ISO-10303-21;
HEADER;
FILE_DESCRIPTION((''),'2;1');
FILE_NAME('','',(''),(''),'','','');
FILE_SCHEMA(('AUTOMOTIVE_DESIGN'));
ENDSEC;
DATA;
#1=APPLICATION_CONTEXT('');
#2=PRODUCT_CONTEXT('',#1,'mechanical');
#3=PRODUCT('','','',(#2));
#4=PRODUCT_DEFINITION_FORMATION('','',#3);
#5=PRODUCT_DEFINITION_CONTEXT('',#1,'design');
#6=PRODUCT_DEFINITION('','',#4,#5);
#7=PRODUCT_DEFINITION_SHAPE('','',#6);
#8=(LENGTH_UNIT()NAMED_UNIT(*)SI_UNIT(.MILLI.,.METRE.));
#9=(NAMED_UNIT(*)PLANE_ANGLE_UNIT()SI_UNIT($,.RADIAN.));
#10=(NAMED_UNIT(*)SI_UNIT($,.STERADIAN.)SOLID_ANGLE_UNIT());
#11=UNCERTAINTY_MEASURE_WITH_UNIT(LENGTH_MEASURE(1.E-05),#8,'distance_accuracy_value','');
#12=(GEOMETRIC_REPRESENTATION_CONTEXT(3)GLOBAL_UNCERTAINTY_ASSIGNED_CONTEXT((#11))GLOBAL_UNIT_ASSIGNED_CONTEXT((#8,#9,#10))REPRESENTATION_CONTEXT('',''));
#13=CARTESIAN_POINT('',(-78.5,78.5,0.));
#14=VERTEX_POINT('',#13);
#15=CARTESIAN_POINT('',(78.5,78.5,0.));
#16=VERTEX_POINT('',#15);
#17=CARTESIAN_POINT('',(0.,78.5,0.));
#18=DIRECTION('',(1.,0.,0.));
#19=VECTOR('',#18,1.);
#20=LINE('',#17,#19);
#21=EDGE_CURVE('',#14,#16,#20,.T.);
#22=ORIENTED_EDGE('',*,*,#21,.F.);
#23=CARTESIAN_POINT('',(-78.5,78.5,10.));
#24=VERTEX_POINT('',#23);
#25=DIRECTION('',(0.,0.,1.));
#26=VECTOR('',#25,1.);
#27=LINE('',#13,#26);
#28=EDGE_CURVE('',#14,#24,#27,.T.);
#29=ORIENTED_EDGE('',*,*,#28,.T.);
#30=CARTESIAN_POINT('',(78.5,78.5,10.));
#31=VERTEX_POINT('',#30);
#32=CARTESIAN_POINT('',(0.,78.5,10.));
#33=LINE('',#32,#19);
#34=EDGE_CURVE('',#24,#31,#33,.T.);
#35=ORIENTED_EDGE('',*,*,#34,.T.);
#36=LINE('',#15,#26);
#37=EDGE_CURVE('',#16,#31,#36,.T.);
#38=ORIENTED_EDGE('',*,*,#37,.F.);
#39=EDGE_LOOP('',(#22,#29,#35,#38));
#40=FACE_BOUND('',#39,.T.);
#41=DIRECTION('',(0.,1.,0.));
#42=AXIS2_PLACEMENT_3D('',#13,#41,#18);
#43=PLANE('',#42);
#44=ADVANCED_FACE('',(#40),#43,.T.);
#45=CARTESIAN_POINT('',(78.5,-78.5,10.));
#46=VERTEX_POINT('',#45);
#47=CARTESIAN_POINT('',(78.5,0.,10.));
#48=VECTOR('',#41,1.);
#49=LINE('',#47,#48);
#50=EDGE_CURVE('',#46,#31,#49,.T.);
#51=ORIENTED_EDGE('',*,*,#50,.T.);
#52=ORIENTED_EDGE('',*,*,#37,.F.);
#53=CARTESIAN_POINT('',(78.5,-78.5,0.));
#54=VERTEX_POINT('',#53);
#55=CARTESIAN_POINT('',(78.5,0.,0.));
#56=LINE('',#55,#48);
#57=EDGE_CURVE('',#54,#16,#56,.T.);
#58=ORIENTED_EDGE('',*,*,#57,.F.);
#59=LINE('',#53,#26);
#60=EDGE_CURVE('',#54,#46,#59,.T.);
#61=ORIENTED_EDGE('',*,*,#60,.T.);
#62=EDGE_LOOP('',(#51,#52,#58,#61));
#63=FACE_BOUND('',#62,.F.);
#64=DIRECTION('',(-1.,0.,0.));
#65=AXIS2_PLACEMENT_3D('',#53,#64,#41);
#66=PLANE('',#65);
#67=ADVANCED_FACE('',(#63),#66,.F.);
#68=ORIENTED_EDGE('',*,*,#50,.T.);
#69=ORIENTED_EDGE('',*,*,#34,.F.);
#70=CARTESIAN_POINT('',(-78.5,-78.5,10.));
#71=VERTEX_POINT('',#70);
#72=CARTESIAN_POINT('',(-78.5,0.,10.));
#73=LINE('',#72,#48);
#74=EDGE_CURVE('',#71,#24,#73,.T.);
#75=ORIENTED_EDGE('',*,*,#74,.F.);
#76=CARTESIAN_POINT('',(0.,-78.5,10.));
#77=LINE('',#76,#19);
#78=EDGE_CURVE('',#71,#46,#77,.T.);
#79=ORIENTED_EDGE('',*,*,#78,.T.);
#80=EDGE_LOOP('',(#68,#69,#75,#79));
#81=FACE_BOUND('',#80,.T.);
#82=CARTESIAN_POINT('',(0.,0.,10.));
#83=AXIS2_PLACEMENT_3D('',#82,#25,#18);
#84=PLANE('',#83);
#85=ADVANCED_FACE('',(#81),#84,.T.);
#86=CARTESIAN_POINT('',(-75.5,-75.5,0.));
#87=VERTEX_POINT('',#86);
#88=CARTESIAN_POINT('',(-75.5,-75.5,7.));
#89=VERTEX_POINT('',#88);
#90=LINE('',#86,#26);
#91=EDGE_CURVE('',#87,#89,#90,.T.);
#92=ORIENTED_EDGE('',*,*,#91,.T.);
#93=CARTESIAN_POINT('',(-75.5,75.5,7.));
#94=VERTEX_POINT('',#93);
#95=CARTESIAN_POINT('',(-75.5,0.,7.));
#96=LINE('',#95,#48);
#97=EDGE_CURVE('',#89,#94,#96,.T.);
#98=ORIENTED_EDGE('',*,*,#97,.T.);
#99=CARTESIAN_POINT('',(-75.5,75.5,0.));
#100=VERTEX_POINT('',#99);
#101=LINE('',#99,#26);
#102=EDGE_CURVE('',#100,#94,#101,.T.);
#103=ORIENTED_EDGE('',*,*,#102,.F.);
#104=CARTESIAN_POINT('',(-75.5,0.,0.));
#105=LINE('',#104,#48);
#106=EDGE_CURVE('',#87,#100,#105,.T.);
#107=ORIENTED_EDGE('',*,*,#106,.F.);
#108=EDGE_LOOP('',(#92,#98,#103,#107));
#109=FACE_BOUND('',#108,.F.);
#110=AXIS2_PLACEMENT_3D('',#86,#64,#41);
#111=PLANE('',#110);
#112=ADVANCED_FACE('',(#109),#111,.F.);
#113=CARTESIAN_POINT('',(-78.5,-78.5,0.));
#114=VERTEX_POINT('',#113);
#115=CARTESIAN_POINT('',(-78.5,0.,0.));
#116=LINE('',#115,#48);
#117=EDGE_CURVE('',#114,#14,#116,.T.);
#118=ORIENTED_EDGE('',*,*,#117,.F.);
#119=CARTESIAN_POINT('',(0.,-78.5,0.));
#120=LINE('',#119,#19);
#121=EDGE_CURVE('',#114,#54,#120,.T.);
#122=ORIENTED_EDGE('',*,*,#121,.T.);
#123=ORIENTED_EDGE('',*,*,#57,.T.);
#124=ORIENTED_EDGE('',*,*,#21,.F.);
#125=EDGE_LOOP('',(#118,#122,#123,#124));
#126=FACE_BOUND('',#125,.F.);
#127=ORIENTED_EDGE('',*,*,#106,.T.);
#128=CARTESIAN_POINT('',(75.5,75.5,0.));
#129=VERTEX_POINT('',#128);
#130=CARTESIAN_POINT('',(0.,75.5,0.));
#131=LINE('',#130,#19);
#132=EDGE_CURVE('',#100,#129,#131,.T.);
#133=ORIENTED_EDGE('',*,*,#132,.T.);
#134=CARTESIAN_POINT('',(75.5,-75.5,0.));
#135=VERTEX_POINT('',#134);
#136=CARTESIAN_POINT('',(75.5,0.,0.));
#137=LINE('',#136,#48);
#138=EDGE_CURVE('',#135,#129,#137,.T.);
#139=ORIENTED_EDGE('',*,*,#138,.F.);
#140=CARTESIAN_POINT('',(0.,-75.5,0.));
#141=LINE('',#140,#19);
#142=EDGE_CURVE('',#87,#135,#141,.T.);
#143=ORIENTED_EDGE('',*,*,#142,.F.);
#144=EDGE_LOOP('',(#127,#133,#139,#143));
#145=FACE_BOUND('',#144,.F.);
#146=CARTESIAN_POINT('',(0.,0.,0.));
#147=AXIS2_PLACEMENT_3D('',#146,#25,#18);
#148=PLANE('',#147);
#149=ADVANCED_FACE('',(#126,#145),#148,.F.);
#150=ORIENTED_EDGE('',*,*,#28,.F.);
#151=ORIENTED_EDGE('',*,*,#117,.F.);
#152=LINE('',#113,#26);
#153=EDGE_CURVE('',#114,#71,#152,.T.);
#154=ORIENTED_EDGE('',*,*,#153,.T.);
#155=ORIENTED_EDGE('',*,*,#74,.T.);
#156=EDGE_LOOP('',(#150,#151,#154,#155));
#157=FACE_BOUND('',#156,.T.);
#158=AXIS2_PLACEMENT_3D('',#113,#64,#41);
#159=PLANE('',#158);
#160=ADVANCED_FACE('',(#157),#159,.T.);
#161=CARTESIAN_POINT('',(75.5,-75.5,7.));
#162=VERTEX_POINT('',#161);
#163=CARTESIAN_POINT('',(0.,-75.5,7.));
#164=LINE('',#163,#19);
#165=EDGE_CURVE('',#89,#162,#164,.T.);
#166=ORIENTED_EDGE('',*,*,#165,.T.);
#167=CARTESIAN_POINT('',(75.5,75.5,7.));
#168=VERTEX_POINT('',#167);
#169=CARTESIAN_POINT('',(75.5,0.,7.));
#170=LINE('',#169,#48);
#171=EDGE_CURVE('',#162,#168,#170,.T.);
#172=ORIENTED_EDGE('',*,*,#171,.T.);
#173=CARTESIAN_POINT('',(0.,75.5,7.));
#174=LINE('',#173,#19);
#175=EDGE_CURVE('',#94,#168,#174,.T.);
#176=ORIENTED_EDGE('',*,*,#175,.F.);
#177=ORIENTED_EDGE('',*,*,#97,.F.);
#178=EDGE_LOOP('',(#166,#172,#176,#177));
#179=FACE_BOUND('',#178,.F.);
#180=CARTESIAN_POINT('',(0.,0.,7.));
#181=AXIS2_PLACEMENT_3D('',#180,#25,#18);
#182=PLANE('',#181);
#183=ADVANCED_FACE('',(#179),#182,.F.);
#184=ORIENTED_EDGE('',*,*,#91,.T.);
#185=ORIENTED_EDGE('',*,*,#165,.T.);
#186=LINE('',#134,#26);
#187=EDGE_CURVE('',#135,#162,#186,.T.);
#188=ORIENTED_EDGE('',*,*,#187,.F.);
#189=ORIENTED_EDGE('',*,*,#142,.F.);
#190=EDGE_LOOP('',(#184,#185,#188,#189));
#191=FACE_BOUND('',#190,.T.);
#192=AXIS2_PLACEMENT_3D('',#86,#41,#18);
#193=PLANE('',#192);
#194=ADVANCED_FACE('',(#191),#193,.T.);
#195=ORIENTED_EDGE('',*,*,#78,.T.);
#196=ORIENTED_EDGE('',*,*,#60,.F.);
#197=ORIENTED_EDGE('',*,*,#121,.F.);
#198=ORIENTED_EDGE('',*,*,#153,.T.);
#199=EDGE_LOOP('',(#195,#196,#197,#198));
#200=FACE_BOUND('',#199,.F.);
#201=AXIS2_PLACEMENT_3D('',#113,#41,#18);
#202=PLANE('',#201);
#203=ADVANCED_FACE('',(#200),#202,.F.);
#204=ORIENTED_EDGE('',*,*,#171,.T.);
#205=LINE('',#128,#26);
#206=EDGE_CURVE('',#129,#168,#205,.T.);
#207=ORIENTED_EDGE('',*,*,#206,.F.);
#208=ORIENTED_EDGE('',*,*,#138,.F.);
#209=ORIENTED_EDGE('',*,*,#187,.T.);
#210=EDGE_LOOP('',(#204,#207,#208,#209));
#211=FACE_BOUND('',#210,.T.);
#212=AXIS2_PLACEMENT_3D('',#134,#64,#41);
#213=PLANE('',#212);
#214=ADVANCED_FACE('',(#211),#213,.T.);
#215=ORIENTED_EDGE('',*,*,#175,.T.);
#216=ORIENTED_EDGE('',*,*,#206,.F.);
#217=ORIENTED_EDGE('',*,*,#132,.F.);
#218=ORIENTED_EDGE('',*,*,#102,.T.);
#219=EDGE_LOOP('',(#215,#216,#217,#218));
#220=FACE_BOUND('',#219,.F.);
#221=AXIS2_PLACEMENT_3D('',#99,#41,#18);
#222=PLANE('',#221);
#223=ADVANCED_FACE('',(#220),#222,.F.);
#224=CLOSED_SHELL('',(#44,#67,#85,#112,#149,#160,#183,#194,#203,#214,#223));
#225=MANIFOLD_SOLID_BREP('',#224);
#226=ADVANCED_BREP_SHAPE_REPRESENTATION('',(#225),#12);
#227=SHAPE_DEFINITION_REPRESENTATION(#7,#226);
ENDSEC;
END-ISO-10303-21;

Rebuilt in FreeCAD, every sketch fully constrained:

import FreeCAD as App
import Part
import Sketcher
from FreeCAD import Vector

doc = App.newDocument("Part")
params = doc.addObject("Spreadsheet::Sheet", "Params")
for row, (alias, value) in enumerate([
    ("sketch1_width", "157 mm"),
    ("pad1_length", "10 mm"),
    ("sketch2_width", "151 mm"),
    ("pocket1_length", "7 mm"),
], start=1):
    params.set(f"A{row}", alias)
    params.set(f"B{row}", "=" + value)
    params.setAlias(f"B{row}", alias)

body = doc.addObject("PartDesign::Body", "Body")

sketch1 = body.newObject("Sketcher::SketchObject", "Sketch")
sketch1.AttachmentSupport = (doc.getObject("XY_Plane"), [""])
sketch1.MapMode = "FlatFace"
sketch1.addGeometry([
    Part.LineSegment(Vector(-78.5, 78.5, 0), Vector(-78.5, -78.5, 0)),
    Part.LineSegment(Vector(-78.5, -78.5, 0), Vector(78.5, -78.5, 0)),
    Part.LineSegment(Vector(78.5, -78.5, 0), Vector(78.5, 78.5, 0)),
    Part.LineSegment(Vector(78.5, 78.5, 0), Vector(-78.5, 78.5, 0)),
], False)
sketch1.addConstraint([
    Sketcher.Constraint("Coincident", 0, 2, 1, 1),
    Sketcher.Constraint("Coincident", 1, 2, 2, 1),
    Sketcher.Constraint("Coincident", 2, 2, 3, 1),
    Sketcher.Constraint("Coincident", 3, 2, 0, 1),
    Sketcher.Constraint("Vertical", 0),
    Sketcher.Constraint("Horizontal", 1),
    Sketcher.Constraint("Vertical", 2),
    Sketcher.Constraint("Horizontal", 3),
    Sketcher.Constraint("Symmetric", 0, 2, 2, 2, -1, 1),
    Sketcher.Constraint("Equal", 3, 0),
    Sketcher.Constraint("DistanceX", 1, 1, 1, 2, 157.0),
])
sketch1.setExpression("Constraints[10]", "Params.sketch1_width")
pad1 = body.newObject("PartDesign::Pad", "Pad")
pad1.Profile = sketch1
pad1.setExpression("Length", "Params.pad1_length")

sketch2 = body.newObject("Sketcher::SketchObject", "Sketch001")
sketch2.AttachmentSupport = (doc.getObject("XY_Plane"), [""])
sketch2.MapMode = "FlatFace"
sketch2.addGeometry([
    Part.LineSegment(Vector(-75.5, 75.5, 0), Vector(-75.5, -75.5, 0)),
    Part.LineSegment(Vector(-75.5, -75.5, 0), Vector(75.5, -75.5, 0)),
    Part.LineSegment(Vector(75.5, -75.5, 0), Vector(75.5, 75.5, 0)),
    Part.LineSegment(Vector(75.5, 75.5, 0), Vector(-75.5, 75.5, 0)),
], False)
sketch2.addConstraint([
    Sketcher.Constraint("Coincident", 0, 2, 1, 1),
    Sketcher.Constraint("Coincident", 1, 2, 2, 1),
    Sketcher.Constraint("Coincident", 2, 2, 3, 1),
    Sketcher.Constraint("Coincident", 3, 2, 0, 1),
    Sketcher.Constraint("Vertical", 0),
    Sketcher.Constraint("Horizontal", 1),
    Sketcher.Constraint("Vertical", 2),
    Sketcher.Constraint("Horizontal", 3),
    Sketcher.Constraint("Symmetric", 0, 2, 2, 2, -1, 1),
    Sketcher.Constraint("Equal", 3, 0),
    Sketcher.Constraint("DistanceX", 1, 1, 1, 2, 151.0),
])
sketch2.setExpression("Constraints[10]", "Params.sketch2_width")
pocket1 = body.newObject("PartDesign::Pocket", "Pocket")
pocket1.Profile = sketch2
pocket1.setExpression("Length", "Params.pocket1_length")
pocket1.Reversed = True

doc.recompute()
